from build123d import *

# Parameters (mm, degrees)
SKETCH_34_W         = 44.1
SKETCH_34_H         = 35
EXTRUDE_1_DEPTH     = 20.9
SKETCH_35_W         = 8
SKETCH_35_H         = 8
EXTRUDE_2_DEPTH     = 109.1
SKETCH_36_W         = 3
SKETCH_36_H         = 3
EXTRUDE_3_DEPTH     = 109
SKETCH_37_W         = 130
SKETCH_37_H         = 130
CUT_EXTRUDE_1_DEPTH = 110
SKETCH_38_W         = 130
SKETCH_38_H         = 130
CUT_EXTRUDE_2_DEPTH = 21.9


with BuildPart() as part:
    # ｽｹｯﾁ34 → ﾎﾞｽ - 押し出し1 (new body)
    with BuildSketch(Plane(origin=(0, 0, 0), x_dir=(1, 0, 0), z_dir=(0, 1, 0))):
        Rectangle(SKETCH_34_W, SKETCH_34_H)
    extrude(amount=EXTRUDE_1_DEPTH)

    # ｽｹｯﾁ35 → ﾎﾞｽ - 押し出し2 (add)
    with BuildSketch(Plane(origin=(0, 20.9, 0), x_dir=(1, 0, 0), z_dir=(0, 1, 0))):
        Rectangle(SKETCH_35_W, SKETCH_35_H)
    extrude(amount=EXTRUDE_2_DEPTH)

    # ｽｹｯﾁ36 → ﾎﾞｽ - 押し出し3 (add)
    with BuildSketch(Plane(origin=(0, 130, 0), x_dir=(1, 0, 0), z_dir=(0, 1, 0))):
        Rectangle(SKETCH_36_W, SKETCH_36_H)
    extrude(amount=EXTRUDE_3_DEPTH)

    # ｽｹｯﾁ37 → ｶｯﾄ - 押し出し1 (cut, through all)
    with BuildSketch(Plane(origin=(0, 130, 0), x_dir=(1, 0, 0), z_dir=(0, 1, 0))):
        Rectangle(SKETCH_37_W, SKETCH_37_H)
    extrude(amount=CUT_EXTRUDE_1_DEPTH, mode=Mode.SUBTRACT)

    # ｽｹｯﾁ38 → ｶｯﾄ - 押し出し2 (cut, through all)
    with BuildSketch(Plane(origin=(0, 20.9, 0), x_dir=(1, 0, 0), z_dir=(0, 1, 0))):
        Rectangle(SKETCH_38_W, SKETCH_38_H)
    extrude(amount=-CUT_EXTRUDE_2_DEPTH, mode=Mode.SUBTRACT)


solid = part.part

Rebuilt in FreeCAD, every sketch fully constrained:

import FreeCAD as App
import Part
import Sketcher

V = App.Vector

doc = App.newDocument("Part")
body = doc.addObject("PartDesign::Body", "Body")

sketch1 = doc.addObject("Sketcher::SketchObject", "Sketch")
body.addObject(sketch1)
sketch1.AttachmentSupport = (doc.XZ_Plane, [""])
sketch1.MapMode = "FlatFace"
sketch1.addGeometry(Part.LineSegment(V(-22, -18, 0), V(-22, 18, 0)), False)
sketch1.addGeometry(Part.LineSegment(V(-22, 18, 0), V(22, 18, 0)), False)
sketch1.addGeometry(Part.LineSegment(V(22, 18, 0), V(22, -18, 0)), False)
sketch1.addGeometry(Part.LineSegment(V(22, -18, 0), V(-22, -18, 0)), False)
sketch1.addConstraint(Sketcher.Constraint("Coincident", 0, 2, 1, 1))
sketch1.addConstraint(Sketcher.Constraint("Coincident", 1, 2, 2, 1))
sketch1.addConstraint(Sketcher.Constraint("Coincident", 2, 2, 3, 1))
sketch1.addConstraint(Sketcher.Constraint("Coincident", 3, 2, 0, 1))
sketch1.addConstraint(Sketcher.Constraint("Vertical", 0))
sketch1.addConstraint(Sketcher.Constraint("Horizontal", 1))
sketch1.addConstraint(Sketcher.Constraint("Vertical", 2))
sketch1.addConstraint(Sketcher.Constraint("Horizontal", 3))
sketch1.addConstraint(Sketcher.Constraint("Symmetric", 0, 2, 2, 2, -1, 1))
sketch1.addConstraint(Sketcher.Constraint("DistanceY", 0, 1, 0, 2, 35.0))
sketch1.addConstraint(Sketcher.Constraint("DistanceX", 1, 1, 1, 2, 44.1))
pad1 = doc.addObject("PartDesign::Pad", "Pad")
body.addObject(pad1)
pad1.Profile = sketch1
pad1.Length = 20.9
pad1.Reversed = True

sketch2 = doc.addObject("Sketcher::SketchObject", "Sketch001")
body.addObject(sketch2)
sketch2.AttachmentSupport = (doc.XZ_Plane, [""])
sketch2.MapMode = "FlatFace"
sketch2.AttachmentOffset = App.Placement(V(0, 0, -20.9), App.Rotation())
sketch2.addGeometry(Part.LineSegment(V(-4, -4, 0), V(-4, 4, 0)), False)
sketch2.addGeometry(Part.LineSegment(V(-4, 4, 0), V(4, 4, 0)), False)
sketch2.addGeometry(Part.LineSegment(V(4, 4, 0), V(4, -4, 0)), False)
sketch2.addGeometry(Part.LineSegment(V(4, -4, 0), V(-4, -4, 0)), False)
sketch2.addConstraint(Sketcher.Constraint("Coincident", 0, 2, 1, 1))
sketch2.addConstraint(Sketcher.Constraint("Coincident", 1, 2, 2, 1))
sketch2.addConstraint(Sketcher.Constraint("Coincident", 2, 2, 3, 1))
sketch2.addConstraint(Sketcher.Constraint("Coincident", 3, 2, 0, 1))
sketch2.addConstraint(Sketcher.Constraint("Vertical", 0))
sketch2.addConstraint(Sketcher.Constraint("Horizontal", 1))
sketch2.addConstraint(Sketcher.Constraint("Vertical", 2))
sketch2.addConstraint(Sketcher.Constraint("Horizontal", 3))
sketch2.addConstraint(Sketcher.Constraint("Symmetric", 0, 2, 2, 2, -1, 1))
sketch2.addConstraint(Sketcher.Constraint("Equal", 3, 0))
sketch2.addConstraint(Sketcher.Constraint("DistanceX", 1, 1, 1, 2, 8.0))
pad2 = doc.addObject("PartDesign::Pad", "Pad001")
body.addObject(pad2)
pad2.Profile = sketch2
pad2.Length = 109.1
pad2.Reversed = True

sketch3 = doc.addObject("Sketcher::SketchObject", "Sketch002")
body.addObject(sketch3)
sketch3.AttachmentSupport = (doc.XZ_Plane, [""])
sketch3.MapMode = "FlatFace"
sketch3.AttachmentOffset = App.Placement(V(0, 0, -130), App.Rotation())
sketch3.addGeometry(Part.LineSegment(V(-1.5, -1.5, 0), V(-1.5, 1.5, 0)), False)
sketch3.addGeometry(Part.LineSegment(V(-1.5, 1.5, 0), V(1.5, 1.5, 0)), False)
sketch3.addGeometry(Part.LineSegment(V(1.5, 1.5, 0), V(1.5, -1.5, 0)), False)
sketch3.addGeometry(Part.LineSegment(V(1.5, -1.5, 0), V(-1.5, -1.5, 0)), False)
sketch3.addConstraint(Sketcher.Constraint("Coincident", 0, 2, 1, 1))
sketch3.addConstraint(Sketcher.Constraint("Coincident", 1, 2, 2, 1))
sketch3.addConstraint(Sketcher.Constraint("Coincident", 2, 2, 3, 1))
sketch3.addConstraint(Sketcher.Constraint("Coincident", 3, 2, 0, 1))
sketch3.addConstraint(Sketcher.Constraint("Vertical", 0))
sketch3.addConstraint(Sketcher.Constraint("Horizontal", 1))
sketch3.addConstraint(Sketcher.Constraint("Vertical", 2))
sketch3.addConstraint(Sketcher.Constraint("Horizontal", 3))
sketch3.addConstraint(Sketcher.Constraint("Symmetric", 0, 2, 2, 2, -1, 1))
sketch3.addConstraint(Sketcher.Constraint("Equal", 3, 0))
sketch3.addConstraint(Sketcher.Constraint("DistanceX", 1, 1, 1, 2, 3.0))
pad3 = doc.addObject("PartDesign::Pad", "Pad002")
body.addObject(pad3)
pad3.Profile = sketch3
pad3.Length = 109
pad3.Reversed = True

sketch4 = doc.addObject("Sketcher::SketchObject", "Sketch003")
body.addObject(sketch4)
sketch4.AttachmentSupport = (doc.XZ_Plane, [""])
sketch4.MapMode = "FlatFace"
sketch4.AttachmentOffset = App.Placement(V(0, 0, -130), App.Rotation())
sketch4.addGeometry(Part.LineSegment(V(-65, -65, 0), V(-65, 65, 0)), False)
sketch4.addGeometry(Part.LineSegment(V(-65, 65, 0), V(65, 65, 0)), False)
sketch4.addGeometry(Part.LineSegment(V(65, 65, 0), V(65, -65, 0)), False)
sketch4.addGeometry(Part.LineSegment(V(65, -65, 0), V(-65, -65, 0)), False)
sketch4.addConstraint(Sketcher.Constraint("Coincident", 0, 2, 1, 1))
sketch4.addConstraint(Sketcher.Constraint("Coincident", 1, 2, 2, 1))
sketch4.addConstraint(Sketcher.Constraint("Coincident", 2, 2, 3, 1))
sketch4.addConstraint(Sketcher.Constraint("Coincident", 3, 2, 0, 1))
sketch4.addConstraint(Sketcher.Constraint("Vertical", 0))
sketch4.addConstraint(Sketcher.Constraint("Horizontal", 1))
sketch4.addConstraint(Sketcher.Constraint("Vertical", 2))
sketch4.addConstraint(Sketcher.Constraint("Horizontal", 3))
sketch4.addConstraint(Sketcher.Constraint("Symmetric", 0, 2, 2, 2, -1, 1))
sketch4.addConstraint(Sketcher.Constraint("Equal", 3, 0))
sketch4.addConstraint(Sketcher.Constraint("DistanceX", 1, 1, 1, 2, 130.0))
pocket1 = doc.addObject("PartDesign::Pocket", "Pocket")
body.addObject(pocket1)
pocket1.Profile = sketch4
pocket1.Type = "ThroughAll"

sketch5 = doc.addObject("Sketcher::SketchObject", "Sketch004")
body.addObject(sketch5)
sketch5.AttachmentSupport = (doc.XZ_Plane, [""])
sketch5.MapMode = "FlatFace"
sketch5.AttachmentOffset = App.Placement(V(0, 0, -20.9), App.Rotation())
sketch5.addGeometry(Part.LineSegment(V(-65, -65, 0), V(-65, 65, 0)), False)
sketch5.addGeometry(Part.LineSegment(V(-65, 65, 0), V(65, 65, 0)), False)
sketch5.addGeometry(Part.LineSegment(V(65, 65, 0), V(65, -65, 0)), False)
sketch5.addGeometry(Part.LineSegment(V(65, -65, 0), V(-65, -65, 0)), False)
sketch5.addConstraint(Sketcher.Constraint("Coincident", 0, 2, 1, 1))
sketch5.addConstraint(Sketcher.Constraint("Coincident", 1, 2, 2, 1))
sketch5.addConstraint(Sketcher.Constraint("Coincident", 2, 2, 3, 1))
sketch5.addConstraint(Sketcher.Constraint("Coincident", 3, 2, 0, 1))
sketch5.addConstraint(Sketcher.Constraint("Vertical", 0))
sketch5.addConstraint(Sketcher.Constraint("Horizontal", 1))
sketch5.addConstraint(Sketcher.Constraint("Vertical", 2))
sketch5.addConstraint(Sketcher.Constraint("Horizontal", 3))
sketch5.addConstraint(Sketcher.Constraint("Symmetric", 0, 2, 2, 2, -1, 1))
sketch5.addConstraint(Sketcher.Constraint("Equal", 3, 0))
sketch5.addConstraint(Sketcher.Constraint("DistanceX", 1, 1, 1, 2, 130.0))
pocket2 = doc.addObject("PartDesign::Pocket", "Pocket001")
body.addObject(pocket2)
pocket2.Profile = sketch5
pocket2.Type = "ThroughAll"
pocket2.Reversed = True

doc.recompute()
